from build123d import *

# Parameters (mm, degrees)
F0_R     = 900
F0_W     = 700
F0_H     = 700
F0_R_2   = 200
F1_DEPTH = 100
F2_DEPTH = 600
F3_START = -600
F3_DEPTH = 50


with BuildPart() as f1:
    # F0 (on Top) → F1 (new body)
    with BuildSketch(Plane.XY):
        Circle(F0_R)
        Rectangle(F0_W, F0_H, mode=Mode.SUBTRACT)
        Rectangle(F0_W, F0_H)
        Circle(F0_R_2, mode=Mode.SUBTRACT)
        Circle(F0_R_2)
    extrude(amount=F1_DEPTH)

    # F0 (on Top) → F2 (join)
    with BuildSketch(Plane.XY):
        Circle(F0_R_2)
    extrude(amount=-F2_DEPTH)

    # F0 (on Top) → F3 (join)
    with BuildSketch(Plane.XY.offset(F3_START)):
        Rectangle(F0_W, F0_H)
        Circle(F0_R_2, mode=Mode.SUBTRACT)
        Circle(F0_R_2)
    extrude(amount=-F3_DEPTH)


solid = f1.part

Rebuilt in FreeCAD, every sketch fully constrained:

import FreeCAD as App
import Part
import Sketcher

V = App.Vector

doc = App.newDocument("Part")
body = doc.addObject("PartDesign::Body", "Body")

# Sketch on XY plane
sketch1 = body.newObject("Sketcher::SketchObject", "Sketch")
sketch1.AttachmentSupport = (doc.getObject("XY_Plane"), [""])
sketch1.MapMode = "FlatFace"
sketch1.addGeometry(Part.Circle(V(0, 0, 0), V(0, 0, 1), 900), False)
sketch1.addConstraint([
    Sketcher.Constraint("Coincident", 0, 3, -1, 1),
    Sketcher.Constraint("Diameter", 0, 1800.0),
])
pad1 = body.newObject("PartDesign::Pad", "Pad")
pad1.Profile = sketch1
pad1.Length = 100

# Sketch on XY plane
sketch2 = body.newObject("Sketcher::SketchObject", "Sketch001")
sketch2.AttachmentSupport = (doc.getObject("XY_Plane"), [""])
sketch2.MapMode = "FlatFace"
sketch2.addGeometry(Part.Circle(V(0, 0, 0), V(0, 0, 1), 200), False)
sketch2.addConstraint([
    Sketcher.Constraint("Coincident", 0, 3, -1, 1),
    Sketcher.Constraint("Diameter", 0, 400.0),
])
pad2 = body.newObject("PartDesign::Pad", "Pad001")
pad2.Profile = sketch2
pad2.Length = 600
pad2.Reversed = True

# Sketch on XY plane
sketch3 = body.newObject("Sketcher::SketchObject", "Sketch002")
sketch3.AttachmentSupport = (doc.getObject("XY_Plane"), [""])
sketch3.MapMode = "FlatFace"
sketch3.AttachmentOffset = App.Placement(V(0, 0, -600), App.Rotation())
sketch3.addGeometry([
    Part.LineSegment(V(-350, 350, 0), V(-350, -350, 0)),
    Part.LineSegment(V(-350, -350, 0), V(350, -350, 0)),
    Part.LineSegment(V(350, -350, 0), V(350, 350, 0)),
    Part.LineSegment(V(350, 350, 0), V(-350, 350, 0)),
], False)
sketch3.addConstraint([
    Sketcher.Constraint("Coincident", 0, 2, 1, 1),
    Sketcher.Constraint("Coincident", 1, 2, 2, 1),
    Sketcher.Constraint("Coincident", 2, 2, 3, 1),
    Sketcher.Constraint("Coincident", 3, 2, 0, 1),
    Sketcher.Constraint("Vertical", 0),
    Sketcher.Constraint("Horizontal", 1),
    Sketcher.Constraint("Vertical", 2),
    Sketcher.Constraint("Horizontal", 3),
    Sketcher.Constraint("Symmetric", 0, 2, 2, 2, -1, 1),
    Sketcher.Constraint("Equal", 3, 0),
    Sketcher.Constraint("DistanceX", 1, 1, 1, 2, 700.0),
])
pad3 = body.newObject("PartDesign::Pad", "Pad002")
pad3.Profile = sketch3
pad3.Length = 50
pad3.Reversed = True

doc.recompute()
